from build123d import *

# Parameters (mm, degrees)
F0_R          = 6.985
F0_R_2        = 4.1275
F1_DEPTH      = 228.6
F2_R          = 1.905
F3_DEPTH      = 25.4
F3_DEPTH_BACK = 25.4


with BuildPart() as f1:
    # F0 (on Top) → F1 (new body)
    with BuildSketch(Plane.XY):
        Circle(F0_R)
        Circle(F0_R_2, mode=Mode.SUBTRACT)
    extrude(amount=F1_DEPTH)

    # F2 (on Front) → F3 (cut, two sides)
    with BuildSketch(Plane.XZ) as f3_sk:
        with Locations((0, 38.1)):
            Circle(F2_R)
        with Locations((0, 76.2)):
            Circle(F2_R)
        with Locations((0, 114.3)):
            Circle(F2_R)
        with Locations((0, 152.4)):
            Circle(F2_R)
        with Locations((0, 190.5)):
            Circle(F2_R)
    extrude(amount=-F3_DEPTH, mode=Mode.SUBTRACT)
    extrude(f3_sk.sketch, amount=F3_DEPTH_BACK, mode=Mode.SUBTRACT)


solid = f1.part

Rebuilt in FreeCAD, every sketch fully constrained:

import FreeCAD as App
import Part
import Sketcher
from FreeCAD import Vector
Q = App.Units.Quantity

doc = App.newDocument("Part")
params = doc.addObject("Spreadsheet::Sheet", "Params")
for row, (alias, value) in enumerate([
    ("sketch1_diameter", "0.55 in"),
    ("sketch1_diameter2", "0.325 in"),
    ("pad1_length", "9 in"),
    ("sketch2_diameter", "0.15 in"),
], start=1):
    params.set(f"A{row}", alias)
    params.set(f"B{row}", "=" + value)
    params.setAlias(f"B{row}", alias)

body = doc.addObject("PartDesign::Body", "Body")

# Sketch on XY plane
sketch1 = doc.addObject("Sketcher::SketchObject", "Sketch")
body.addObject(sketch1)
sketch1.AttachmentSupport = (doc.XY_Plane, [""])
sketch1.MapMode = "FlatFace"
sketch1.addGeometry([
    Part.Circle(Vector(0, 0, 0), Vector(0, 0, 1), 7),
    Part.Circle(Vector(0, 0, 0), Vector(0, 0, 1), 4.1),
], False)
sketch1.addConstraint([
    Sketcher.Constraint("Coincident", 0, 3, -1, 1),
    Sketcher.Constraint("Coincident", 1, 3, -1, 1),
    Sketcher.Constraint("Diameter", 0, Q("0.55 in")),
    Sketcher.Constraint("Diameter", 1, Q("0.325 in")),
])
sketch1.setExpression("Constraints[2]", "Params.sketch1_diameter")
sketch1.setExpression("Constraints[3]", "Params.sketch1_diameter2")
pad1 = doc.addObject("PartDesign::Pad", "Pad")
body.addObject(pad1)
pad1.Profile = sketch1
pad1.setExpression("Length", "Params.pad1_length")

# Sketch on XZ plane
sketch2 = doc.addObject("Sketcher::SketchObject", "Sketch001")
body.addObject(sketch2)
sketch2.AttachmentSupport = (doc.XZ_Plane, [""])
sketch2.MapMode = "FlatFace"
sketch2.addGeometry([
    Part.Circle(Vector(0, 38.1, 0), Vector(0, 0, 1), 1.9),  # 0
    Part.Circle(Vector(0, 76.2, 0), Vector(0, 0, 1), 1.9),  # 1
    Part.Circle(Vector(0, 114.3, 0), Vector(0, 0, 1), 1.9),  # 2
    Part.Circle(Vector(0, 152.4, 0), Vector(0, 0, 1), 1.9),  # 3
    Part.Circle(Vector(0, 190.5, 0), Vector(0, 0, 1), 1.9),  # 4
], False)
sketch2.addConstraint([
    Sketcher.Constraint("Equal", 0, 1),
    Sketcher.Constraint("Equal", 1, 2),
    Sketcher.Constraint("Equal", 2, 3),
    Sketcher.Constraint("Equal", 3, 4),
    Sketcher.Constraint("PointOnObject", 0, 3, -2),
    Sketcher.Constraint("PointOnObject", 1, 3, -2),
    Sketcher.Constraint("PointOnObject", 2, 3, -2),
    Sketcher.Constraint("PointOnObject", 3, 3, -2),
    Sketcher.Constraint("PointOnObject", 4, 3, -2),
    Sketcher.Constraint("Diameter", 0, Q("0.15 in")),
    Sketcher.Constraint("DistanceY", -1, 1, 1, 3, Q("3 in")),
    Sketcher.Constraint("DistanceY", -1, 1, 3, 3, Q("6 in")),
    Sketcher.Constraint("DistanceY", 0, 3, 2, 3, Q("3 in")),
    Sketcher.Constraint("DistanceY", 2, 3, 4, 3, Q("3 in")),
    Sketcher.Constraint("DistanceY", -1, 1, 0, 3, Q("1.5 in")),
])
sketch2.setExpression("Constraints[9]", "Params.sketch2_diameter")
pocket1 = doc.addObject("PartDesign::Pocket", "Pocket")
body.addObject(pocket1)
pocket1.Profile = sketch2
pocket1.Type = "ThroughAll"
pocket1.Midplane = True

doc.recompute()
